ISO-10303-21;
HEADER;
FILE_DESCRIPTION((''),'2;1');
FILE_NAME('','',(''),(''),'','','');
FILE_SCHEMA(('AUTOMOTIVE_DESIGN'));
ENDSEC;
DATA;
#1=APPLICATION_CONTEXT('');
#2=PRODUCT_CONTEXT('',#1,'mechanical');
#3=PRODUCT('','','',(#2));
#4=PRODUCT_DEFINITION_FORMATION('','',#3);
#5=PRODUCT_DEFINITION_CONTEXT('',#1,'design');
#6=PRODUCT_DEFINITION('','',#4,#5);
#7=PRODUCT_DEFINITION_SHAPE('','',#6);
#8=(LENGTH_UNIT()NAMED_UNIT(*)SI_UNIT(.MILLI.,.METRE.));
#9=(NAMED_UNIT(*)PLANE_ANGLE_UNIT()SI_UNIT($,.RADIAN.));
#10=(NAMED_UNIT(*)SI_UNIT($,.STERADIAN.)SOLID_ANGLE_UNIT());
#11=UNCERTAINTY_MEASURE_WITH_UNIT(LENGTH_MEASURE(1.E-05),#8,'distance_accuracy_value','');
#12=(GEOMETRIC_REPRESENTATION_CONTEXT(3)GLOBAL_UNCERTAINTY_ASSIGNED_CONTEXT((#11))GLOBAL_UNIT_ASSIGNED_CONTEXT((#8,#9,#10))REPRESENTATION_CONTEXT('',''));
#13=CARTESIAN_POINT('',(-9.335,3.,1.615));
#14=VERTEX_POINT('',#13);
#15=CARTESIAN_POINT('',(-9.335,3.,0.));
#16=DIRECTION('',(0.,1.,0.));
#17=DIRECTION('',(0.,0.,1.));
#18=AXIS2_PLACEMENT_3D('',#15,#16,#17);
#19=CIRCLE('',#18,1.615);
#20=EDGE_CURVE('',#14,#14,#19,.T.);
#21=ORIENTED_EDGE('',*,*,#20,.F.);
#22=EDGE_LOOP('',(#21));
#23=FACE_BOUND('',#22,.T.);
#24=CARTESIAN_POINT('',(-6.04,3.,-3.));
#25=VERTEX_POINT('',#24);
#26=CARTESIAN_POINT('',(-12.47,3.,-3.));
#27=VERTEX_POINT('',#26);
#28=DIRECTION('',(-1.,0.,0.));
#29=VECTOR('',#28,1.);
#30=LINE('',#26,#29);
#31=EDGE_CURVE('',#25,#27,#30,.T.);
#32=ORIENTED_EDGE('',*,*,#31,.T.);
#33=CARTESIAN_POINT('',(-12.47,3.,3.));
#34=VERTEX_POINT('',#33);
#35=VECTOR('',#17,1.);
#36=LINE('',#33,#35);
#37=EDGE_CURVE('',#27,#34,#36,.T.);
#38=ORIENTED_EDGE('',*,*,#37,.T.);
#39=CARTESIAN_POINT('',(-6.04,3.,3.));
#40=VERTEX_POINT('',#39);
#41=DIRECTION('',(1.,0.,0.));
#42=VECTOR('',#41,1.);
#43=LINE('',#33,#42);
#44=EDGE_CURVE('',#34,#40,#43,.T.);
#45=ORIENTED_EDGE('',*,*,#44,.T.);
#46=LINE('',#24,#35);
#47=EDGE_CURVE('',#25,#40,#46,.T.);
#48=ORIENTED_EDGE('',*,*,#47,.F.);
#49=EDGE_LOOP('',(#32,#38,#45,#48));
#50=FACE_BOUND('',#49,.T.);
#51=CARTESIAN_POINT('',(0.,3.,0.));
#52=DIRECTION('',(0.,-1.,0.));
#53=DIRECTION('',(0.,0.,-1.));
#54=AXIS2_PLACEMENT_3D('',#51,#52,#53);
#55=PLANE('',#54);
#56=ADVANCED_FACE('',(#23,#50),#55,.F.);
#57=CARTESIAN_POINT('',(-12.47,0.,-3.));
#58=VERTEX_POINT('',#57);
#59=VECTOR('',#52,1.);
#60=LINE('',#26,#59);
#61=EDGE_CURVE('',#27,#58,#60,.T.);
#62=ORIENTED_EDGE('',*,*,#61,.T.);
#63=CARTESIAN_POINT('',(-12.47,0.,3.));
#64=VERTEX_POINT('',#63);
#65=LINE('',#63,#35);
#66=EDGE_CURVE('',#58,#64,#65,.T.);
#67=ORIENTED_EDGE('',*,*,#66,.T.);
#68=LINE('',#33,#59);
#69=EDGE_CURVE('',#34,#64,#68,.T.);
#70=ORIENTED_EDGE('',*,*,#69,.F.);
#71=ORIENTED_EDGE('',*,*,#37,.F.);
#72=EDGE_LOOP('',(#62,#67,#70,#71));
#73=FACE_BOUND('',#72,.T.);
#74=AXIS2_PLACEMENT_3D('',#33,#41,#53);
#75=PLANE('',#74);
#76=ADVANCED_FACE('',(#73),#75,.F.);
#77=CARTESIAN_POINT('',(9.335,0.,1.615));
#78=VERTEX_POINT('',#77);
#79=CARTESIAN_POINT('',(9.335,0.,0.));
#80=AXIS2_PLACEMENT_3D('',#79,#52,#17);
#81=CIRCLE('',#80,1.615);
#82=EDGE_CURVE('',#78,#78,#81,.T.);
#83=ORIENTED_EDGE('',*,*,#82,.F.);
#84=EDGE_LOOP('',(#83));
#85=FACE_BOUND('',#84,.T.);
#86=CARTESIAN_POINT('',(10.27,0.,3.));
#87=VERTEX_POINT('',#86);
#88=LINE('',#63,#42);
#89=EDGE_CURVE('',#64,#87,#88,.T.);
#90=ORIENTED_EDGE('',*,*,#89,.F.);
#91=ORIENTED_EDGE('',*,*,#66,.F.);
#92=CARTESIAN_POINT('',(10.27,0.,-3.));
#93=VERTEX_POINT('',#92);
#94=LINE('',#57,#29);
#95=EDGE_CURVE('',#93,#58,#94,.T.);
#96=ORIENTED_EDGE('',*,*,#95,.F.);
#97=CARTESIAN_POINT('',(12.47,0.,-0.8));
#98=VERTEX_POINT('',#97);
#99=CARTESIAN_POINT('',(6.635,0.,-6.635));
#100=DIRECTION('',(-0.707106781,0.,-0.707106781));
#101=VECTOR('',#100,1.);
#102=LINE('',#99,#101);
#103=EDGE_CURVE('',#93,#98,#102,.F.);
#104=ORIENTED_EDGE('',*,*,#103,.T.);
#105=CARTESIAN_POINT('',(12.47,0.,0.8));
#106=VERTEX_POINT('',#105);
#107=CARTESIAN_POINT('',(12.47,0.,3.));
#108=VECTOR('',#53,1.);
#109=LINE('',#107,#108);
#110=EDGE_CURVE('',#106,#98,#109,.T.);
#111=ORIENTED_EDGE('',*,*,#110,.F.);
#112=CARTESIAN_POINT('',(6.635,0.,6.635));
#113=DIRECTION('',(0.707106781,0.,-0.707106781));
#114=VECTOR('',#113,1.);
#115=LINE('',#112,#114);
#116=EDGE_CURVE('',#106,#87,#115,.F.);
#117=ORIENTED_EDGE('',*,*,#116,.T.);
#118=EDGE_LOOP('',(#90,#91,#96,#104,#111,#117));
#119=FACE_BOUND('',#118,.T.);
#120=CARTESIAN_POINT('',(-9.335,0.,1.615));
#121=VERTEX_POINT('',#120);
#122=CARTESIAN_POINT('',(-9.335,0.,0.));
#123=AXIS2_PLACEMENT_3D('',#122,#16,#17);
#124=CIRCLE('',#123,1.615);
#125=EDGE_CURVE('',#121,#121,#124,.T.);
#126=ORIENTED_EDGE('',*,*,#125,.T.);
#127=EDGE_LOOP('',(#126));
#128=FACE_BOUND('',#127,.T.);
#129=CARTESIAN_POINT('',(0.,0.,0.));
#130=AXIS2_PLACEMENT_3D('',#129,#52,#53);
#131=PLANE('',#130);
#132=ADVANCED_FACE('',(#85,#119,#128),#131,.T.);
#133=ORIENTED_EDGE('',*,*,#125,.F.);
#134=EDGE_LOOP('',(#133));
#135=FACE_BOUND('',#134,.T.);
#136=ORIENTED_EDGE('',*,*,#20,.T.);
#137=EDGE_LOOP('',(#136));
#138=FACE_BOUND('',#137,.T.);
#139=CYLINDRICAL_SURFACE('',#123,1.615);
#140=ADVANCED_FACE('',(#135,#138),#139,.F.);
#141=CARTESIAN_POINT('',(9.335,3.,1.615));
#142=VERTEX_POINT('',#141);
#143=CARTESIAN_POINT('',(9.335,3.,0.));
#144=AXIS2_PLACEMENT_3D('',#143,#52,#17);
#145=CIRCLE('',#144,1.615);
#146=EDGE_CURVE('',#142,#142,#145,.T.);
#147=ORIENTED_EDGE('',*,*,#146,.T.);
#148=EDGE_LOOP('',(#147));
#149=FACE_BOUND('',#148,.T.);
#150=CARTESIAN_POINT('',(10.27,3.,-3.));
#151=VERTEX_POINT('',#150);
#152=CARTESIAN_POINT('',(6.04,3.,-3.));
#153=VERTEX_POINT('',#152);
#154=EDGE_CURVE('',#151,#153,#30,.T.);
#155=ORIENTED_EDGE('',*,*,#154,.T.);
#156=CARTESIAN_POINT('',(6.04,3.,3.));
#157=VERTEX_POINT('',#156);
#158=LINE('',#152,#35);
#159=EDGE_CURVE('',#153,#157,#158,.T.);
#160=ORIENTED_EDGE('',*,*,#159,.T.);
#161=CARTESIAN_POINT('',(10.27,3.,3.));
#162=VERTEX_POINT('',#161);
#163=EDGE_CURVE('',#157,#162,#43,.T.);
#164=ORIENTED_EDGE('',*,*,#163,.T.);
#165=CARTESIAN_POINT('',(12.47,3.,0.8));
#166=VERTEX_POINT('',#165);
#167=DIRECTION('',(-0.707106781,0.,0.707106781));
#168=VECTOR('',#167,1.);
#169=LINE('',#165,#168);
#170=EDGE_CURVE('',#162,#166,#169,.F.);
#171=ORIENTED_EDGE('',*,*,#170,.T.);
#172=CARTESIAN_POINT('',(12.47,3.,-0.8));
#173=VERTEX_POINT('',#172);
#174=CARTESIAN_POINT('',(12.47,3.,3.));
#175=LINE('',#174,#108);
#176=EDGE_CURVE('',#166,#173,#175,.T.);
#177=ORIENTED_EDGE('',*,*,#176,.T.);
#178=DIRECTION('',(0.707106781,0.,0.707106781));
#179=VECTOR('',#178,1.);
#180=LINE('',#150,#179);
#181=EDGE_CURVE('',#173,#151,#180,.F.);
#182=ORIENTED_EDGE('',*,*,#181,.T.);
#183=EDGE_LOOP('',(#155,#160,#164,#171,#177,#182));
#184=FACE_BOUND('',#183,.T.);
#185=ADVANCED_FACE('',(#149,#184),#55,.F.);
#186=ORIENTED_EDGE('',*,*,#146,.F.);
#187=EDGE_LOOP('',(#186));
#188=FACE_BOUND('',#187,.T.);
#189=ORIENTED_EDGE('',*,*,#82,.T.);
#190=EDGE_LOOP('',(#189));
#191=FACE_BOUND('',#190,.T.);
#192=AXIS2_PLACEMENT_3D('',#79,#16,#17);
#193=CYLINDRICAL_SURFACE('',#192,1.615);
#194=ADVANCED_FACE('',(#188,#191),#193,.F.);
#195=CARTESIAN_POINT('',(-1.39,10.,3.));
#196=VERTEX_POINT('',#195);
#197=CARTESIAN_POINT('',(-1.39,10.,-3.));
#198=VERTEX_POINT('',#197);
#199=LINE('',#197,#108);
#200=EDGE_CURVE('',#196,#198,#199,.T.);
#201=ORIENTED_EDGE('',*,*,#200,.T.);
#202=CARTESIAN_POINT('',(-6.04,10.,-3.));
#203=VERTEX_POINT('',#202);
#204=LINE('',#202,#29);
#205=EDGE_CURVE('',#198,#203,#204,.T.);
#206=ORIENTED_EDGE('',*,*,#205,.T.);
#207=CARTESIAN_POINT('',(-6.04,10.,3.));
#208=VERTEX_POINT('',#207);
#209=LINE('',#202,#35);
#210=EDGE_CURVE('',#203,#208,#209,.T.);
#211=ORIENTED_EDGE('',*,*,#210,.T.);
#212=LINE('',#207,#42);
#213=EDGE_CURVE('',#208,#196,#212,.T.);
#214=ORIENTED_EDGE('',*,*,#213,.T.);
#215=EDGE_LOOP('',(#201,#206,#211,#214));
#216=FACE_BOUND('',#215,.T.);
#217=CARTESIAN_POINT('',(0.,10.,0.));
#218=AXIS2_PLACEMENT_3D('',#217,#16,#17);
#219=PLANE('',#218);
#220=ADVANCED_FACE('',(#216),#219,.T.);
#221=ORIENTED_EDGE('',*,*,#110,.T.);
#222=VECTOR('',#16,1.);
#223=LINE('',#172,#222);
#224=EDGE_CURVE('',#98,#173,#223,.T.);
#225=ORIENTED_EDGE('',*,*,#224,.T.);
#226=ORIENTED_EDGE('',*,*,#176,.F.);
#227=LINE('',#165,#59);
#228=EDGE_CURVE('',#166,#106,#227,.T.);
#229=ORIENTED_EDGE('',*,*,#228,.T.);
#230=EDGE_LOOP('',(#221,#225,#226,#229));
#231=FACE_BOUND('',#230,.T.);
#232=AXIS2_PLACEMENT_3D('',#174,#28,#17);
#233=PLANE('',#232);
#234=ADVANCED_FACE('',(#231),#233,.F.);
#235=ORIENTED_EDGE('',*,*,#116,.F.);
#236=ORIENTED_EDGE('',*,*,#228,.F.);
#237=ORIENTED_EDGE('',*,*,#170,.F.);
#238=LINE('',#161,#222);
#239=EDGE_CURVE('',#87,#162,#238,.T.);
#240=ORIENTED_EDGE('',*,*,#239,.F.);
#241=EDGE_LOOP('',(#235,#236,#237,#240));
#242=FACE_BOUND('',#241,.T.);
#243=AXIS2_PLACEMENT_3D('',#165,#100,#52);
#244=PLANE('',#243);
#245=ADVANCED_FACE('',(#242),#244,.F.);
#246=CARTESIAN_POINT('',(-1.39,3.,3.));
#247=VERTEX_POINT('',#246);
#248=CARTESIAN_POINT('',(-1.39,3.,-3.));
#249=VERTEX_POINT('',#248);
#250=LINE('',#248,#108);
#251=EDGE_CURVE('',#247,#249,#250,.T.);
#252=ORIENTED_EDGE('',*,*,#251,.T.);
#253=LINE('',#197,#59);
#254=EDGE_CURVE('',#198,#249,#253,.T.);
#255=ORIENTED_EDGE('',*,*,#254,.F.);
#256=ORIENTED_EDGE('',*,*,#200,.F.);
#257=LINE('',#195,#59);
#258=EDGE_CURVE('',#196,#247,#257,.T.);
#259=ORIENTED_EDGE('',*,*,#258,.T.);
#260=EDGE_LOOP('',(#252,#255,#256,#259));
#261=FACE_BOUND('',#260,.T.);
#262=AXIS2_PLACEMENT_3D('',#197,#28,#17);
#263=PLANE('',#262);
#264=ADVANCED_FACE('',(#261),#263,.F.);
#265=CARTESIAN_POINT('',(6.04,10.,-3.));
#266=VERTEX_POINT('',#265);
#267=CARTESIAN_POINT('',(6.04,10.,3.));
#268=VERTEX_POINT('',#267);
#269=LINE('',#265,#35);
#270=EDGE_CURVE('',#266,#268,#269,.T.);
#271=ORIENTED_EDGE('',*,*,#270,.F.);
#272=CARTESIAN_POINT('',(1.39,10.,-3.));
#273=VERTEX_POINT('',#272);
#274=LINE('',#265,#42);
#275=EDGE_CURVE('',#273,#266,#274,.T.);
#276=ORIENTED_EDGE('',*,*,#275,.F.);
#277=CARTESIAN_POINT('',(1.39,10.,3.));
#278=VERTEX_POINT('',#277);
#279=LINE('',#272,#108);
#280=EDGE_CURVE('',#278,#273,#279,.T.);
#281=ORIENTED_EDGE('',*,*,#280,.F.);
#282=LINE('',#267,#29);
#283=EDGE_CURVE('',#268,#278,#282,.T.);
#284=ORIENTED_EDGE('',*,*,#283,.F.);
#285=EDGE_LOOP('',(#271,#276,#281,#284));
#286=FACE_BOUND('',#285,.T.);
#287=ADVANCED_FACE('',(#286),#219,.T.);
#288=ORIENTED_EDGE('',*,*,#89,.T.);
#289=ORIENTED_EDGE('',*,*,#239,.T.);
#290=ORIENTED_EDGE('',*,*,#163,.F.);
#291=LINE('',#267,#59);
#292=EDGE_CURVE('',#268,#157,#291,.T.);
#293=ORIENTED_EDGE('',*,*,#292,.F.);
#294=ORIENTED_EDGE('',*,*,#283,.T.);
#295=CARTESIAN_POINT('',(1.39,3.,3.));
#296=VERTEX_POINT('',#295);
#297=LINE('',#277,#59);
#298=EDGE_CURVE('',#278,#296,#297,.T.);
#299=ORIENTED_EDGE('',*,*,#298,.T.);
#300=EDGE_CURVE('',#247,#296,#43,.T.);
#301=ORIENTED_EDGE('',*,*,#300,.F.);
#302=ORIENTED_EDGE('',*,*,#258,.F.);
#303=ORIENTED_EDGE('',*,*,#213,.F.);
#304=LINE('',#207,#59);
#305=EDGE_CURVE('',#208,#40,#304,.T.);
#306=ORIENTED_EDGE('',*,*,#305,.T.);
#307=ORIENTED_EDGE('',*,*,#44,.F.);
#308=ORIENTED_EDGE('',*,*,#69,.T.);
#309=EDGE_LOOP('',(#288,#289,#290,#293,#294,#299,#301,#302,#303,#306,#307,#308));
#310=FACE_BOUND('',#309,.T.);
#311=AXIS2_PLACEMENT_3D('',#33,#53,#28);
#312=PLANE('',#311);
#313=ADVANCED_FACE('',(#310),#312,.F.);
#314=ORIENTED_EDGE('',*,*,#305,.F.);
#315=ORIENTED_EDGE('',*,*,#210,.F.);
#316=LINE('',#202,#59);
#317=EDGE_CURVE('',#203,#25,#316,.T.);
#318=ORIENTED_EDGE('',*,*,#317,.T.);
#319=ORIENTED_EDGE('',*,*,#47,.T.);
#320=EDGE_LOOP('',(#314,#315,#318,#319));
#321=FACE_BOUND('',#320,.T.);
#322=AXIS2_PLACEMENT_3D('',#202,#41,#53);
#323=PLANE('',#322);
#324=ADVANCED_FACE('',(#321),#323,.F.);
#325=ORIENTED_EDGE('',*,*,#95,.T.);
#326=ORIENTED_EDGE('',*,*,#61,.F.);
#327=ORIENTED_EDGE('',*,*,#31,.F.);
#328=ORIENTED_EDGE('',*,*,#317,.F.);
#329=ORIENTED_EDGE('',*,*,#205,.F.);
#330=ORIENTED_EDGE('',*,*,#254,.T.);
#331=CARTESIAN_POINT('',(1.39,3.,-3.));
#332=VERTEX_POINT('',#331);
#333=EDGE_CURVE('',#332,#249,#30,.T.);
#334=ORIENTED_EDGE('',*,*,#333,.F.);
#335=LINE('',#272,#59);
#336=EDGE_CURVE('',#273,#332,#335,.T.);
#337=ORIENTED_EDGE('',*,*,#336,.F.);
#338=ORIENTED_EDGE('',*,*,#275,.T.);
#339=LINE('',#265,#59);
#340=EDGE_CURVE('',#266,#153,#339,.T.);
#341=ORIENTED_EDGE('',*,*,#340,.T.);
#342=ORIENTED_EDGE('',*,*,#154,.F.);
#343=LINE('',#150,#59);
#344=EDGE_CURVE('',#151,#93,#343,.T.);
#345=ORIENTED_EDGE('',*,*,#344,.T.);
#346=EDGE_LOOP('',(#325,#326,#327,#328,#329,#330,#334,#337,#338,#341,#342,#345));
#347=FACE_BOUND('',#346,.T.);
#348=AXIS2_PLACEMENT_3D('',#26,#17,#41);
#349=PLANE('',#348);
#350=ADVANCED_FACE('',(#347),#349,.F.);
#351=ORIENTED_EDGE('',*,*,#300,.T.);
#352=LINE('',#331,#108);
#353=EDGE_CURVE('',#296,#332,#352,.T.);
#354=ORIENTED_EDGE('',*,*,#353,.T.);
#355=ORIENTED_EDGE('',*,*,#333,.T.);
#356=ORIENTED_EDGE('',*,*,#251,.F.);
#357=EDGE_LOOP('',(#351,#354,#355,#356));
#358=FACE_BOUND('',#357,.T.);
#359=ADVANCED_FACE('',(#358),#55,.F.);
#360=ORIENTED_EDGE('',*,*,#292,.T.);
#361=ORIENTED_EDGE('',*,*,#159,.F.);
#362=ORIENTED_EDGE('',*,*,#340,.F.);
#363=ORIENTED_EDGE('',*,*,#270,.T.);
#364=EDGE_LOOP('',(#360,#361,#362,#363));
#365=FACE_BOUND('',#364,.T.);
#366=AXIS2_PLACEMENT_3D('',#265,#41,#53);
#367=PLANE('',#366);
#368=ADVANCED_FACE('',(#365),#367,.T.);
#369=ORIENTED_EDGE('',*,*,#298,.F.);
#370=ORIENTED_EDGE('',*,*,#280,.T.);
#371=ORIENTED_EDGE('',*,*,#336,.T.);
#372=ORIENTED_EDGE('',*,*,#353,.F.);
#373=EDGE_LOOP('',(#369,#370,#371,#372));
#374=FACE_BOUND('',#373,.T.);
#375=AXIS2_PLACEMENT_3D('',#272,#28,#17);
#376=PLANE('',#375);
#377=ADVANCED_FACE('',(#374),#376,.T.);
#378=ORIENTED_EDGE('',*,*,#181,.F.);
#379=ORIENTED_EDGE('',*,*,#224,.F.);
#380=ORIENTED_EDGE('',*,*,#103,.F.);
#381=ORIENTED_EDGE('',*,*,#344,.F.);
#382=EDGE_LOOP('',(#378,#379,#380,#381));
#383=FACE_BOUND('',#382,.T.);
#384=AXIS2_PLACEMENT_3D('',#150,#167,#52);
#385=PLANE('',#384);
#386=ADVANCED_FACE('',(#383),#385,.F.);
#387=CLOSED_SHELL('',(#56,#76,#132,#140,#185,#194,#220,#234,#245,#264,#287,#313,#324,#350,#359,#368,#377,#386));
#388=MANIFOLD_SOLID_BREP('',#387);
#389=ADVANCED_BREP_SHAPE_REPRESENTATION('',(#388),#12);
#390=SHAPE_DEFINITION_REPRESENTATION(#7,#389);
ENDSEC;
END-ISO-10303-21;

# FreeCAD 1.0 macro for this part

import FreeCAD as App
import Part
import Sketcher
Q = App.Units.Quantity


def edges_at(feature, points):
    """Names of the edges that pass closest to the given points."""
    edges = feature.Shape.Edges
    near = lambda p: min(range(len(edges)), key=lambda i: edges[i].distToShape(Part.Vertex(*p))[0])
    return sorted({f"Edge{near(p) + 1}" for p in points})

doc = App.newDocument("Part")
body = doc.addObject("PartDesign::Body", "Body")

sketch1 = body.newObject("Sketcher::SketchObject", "Sketch")
sketch1.AttachmentSupport = (doc.getObject("XZ_Plane"), [""])
sketch1.MapMode = "FlatFace"
sketch1.addGeometry([
    Part.LineSegment(App.Vector(-12, -3, 0), App.Vector(-12, 3, 0)),
    Part.LineSegment(App.Vector(-12, 3, 0), App.Vector(12, 3, 0)),
    Part.LineSegment(App.Vector(12, 3, 0), App.Vector(12, -3, 0)),
    Part.LineSegment(App.Vector(12, -3, 0), App.Vector(-12, -3, 0)),
], False)
sketch1.addConstraint([
    Sketcher.Constraint("Coincident", 0, 2, 1, 1),
    Sketcher.Constraint("Coincident", 1, 2, 2, 1),
    Sketcher.Constraint("Coincident", 2, 2, 3, 1),
    Sketcher.Constraint("Coincident", 3, 2, 0, 1),
    Sketcher.Constraint("Vertical", 0),
    Sketcher.Constraint("Horizontal", 1),
    Sketcher.Constraint("Vertical", 2),
    Sketcher.Constraint("Horizontal", 3),
    Sketcher.Constraint("Symmetric", 0, 2, 2, 2, -1, 1),
    Sketcher.Constraint("DistanceY", 0, 1, 0, 2, Q("6 mm")),
    Sketcher.Constraint("DistanceX", 1, 1, 1, 2, Q("24.94 mm")),
])
pad1 = body.newObject("PartDesign::Pad", "Pad")
pad1.Profile = sketch1
pad1.Length = 3
pad1.Reversed = True

sketch2 = body.newObject("Sketcher::SketchObject", "Sketch001")
sketch2.AttachmentSupport = (doc.getObject("XZ_Plane"), [""])
sketch2.MapMode = "FlatFace"
sketch2.AttachmentOffset = App.Placement(App.Vector(0, 0, -3), App.Rotation())
sketch2.addGeometry([
    Part.LineSegment(App.Vector(-6, -3, 0), App.Vector(-6, 3, 0)),
    Part.LineSegment(App.Vector(-6, 3, 0), App.Vector(-1.4, 3, 0)),
    Part.LineSegment(App.Vector(-1.4, 3, 0), App.Vector(-1.4, -3, 0)),
    Part.LineSegment(App.Vector(-1.4, -3, 0), App.Vector(-6, -3, 0)),
], False)
sketch2.addConstraint([
    Sketcher.Constraint("Coincident", 0, 2, 1, 1),
    Sketcher.Constraint("Coincident", 1, 2, 2, 1),
    Sketcher.Constraint("Coincident", 2, 2, 3, 1),
    Sketcher.Constraint("Coincident", 3, 2, 0, 1),
    Sketcher.Constraint("Vertical", 0),
    Sketcher.Constraint("Horizontal", 1),
    Sketcher.Constraint("Vertical", 2),
    Sketcher.Constraint("Horizontal", 3),
    Sketcher.Constraint("DistanceY", 0, 1, 0, 2, Q("6 mm")),
    Sketcher.Constraint("DistanceY", -1, 1, 0, 2, Q("3 mm")),
    Sketcher.Constraint("DistanceX", 1, 1, 1, 2, Q("4.65 mm")),
    Sketcher.Constraint("DistanceX", 0, 2, -1, 1, Q("6.04 mm")),
])
pad2 = body.newObject("PartDesign::Pad", "Pad001")
pad2.Profile = sketch2
pad2.Length = 7
pad2.Reversed = True

sketch3 = body.newObject("Sketcher::SketchObject", "Sketch002")
sketch3.AttachmentSupport = (doc.getObject("XZ_Plane"), [""])
sketch3.MapMode = "FlatFace"
sketch3.AttachmentOffset = App.Placement(App.Vector(0, 0, -3), App.Rotation())
sketch3.addGeometry(Part.Circle(App.Vector(-9.3, 0, 0), App.Vector(0, 0, 1), 1.6), False)
sketch3.addConstraint([
    Sketcher.Constraint("PointOnObject", 0, 3, -1),
    Sketcher.Constraint("Diameter", 0, Q("3.23 mm")),
    Sketcher.Constraint("DistanceX", 0, 3, -1, 1, Q("9.335 mm")),
])
pocket1 = body.newObject("PartDesign::Pocket", "Pocket")
pocket1.Profile = sketch3
pocket1.Type = "ThroughAll"
pocket1.Reversed = True
doc.recompute()

mirrored = body.newObject("PartDesign::Mirrored", "Mirrored")
mirrored.Originals = [pad2, pocket1]
mirrored.MirrorPlane = (doc.getObject("YZ_Plane"), [""])
body.Tip = mirrored
doc.recompute()

chamfer = body.newObject("PartDesign::Chamfer", "Chamfer")
chamfer.Base = (mirrored, edges_at(mirrored, [(12.47, 1.5, 3), (12.47, 1.5, -3)]))
chamfer.Size = 2.2

doc.recompute()
